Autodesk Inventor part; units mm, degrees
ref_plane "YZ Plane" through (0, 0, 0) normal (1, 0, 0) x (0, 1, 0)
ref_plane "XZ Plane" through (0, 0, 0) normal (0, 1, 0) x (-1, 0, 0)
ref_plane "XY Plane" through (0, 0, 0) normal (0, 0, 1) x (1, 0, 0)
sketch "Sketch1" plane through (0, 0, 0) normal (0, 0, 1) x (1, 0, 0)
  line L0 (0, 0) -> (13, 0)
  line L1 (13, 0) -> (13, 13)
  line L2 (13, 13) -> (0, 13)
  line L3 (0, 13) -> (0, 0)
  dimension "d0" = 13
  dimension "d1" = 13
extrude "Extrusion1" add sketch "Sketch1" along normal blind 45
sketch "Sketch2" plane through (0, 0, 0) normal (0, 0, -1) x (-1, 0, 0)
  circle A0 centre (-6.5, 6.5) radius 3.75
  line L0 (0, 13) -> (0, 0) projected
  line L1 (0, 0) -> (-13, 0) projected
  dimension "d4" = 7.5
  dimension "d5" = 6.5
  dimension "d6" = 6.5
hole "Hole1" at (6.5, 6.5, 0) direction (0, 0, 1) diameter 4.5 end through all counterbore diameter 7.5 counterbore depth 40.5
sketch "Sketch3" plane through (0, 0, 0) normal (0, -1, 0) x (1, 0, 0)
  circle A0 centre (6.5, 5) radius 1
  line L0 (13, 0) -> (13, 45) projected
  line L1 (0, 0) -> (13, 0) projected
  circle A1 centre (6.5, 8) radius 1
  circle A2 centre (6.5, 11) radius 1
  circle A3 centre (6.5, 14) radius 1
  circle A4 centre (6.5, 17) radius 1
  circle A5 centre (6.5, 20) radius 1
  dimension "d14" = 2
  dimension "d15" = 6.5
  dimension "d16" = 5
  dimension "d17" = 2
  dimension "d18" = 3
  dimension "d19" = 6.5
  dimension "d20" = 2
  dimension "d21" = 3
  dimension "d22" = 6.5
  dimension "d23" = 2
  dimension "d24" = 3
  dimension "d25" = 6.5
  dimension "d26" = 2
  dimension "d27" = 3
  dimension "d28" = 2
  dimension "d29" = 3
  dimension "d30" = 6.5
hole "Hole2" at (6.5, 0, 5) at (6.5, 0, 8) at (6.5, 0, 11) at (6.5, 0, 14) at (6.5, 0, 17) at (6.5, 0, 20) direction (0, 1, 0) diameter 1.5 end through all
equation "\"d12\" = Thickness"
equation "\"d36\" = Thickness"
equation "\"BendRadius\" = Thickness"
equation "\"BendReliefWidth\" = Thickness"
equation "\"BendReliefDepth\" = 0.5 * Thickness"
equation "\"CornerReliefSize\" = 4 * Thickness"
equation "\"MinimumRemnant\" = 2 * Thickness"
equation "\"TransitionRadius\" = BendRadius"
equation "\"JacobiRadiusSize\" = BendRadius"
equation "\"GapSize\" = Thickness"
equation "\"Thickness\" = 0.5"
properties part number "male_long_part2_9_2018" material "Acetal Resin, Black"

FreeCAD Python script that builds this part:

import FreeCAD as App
import Part
import Sketcher
Q = App.Units.Quantity

doc = App.newDocument("Part")
body = doc.addObject("PartDesign::Body", "Body")

sketch1 = doc.addObject("Sketcher::SketchObject", "Sketch")
body.addObject(sketch1)
sketch1.AttachmentSupport = (doc.XY_Plane, [""])
sketch1.MapMode = "FlatFace"
sketch1.addGeometry(Part.LineSegment(App.Vector(0, 13, 0), App.Vector(0, 0, 0)), False)
sketch1.addGeometry(Part.LineSegment(App.Vector(0, 0, 0), App.Vector(13, 0, 0)), False)
sketch1.addGeometry(Part.LineSegment(App.Vector(13, 0, 0), App.Vector(13, 13, 0)), False)
sketch1.addGeometry(Part.LineSegment(App.Vector(13, 13, 0), App.Vector(0, 13, 0)), False)
sketch1.addConstraint(Sketcher.Constraint("Coincident", 0, 2, 1, 1))
sketch1.addConstraint(Sketcher.Constraint("Coincident", 1, 2, 2, 1))
sketch1.addConstraint(Sketcher.Constraint("Coincident", 2, 2, 3, 1))
sketch1.addConstraint(Sketcher.Constraint("Coincident", 3, 2, 0, 1))
sketch1.addConstraint(Sketcher.Constraint("Vertical", 0))
sketch1.addConstraint(Sketcher.Constraint("Horizontal", 1))
sketch1.addConstraint(Sketcher.Constraint("Vertical", 2))
sketch1.addConstraint(Sketcher.Constraint("Horizontal", 3))
sketch1.addConstraint(Sketcher.Constraint("Coincident", 0, 2, -1, 1))
sketch1.addConstraint(Sketcher.Constraint("Equal", 3, 0))
sketch1.addConstraint(Sketcher.Constraint("DistanceX", 1, 1, 1, 2, Q("13 mm")))
pad1 = doc.addObject("PartDesign::Pad", "Pad")
body.addObject(pad1)
pad1.Profile = sketch1
pad1.Length = 45

sketch2 = doc.addObject("Sketcher::SketchObject", "Sketch001")
body.addObject(sketch2)
sketch2.AttachmentSupport = (doc.XY_Plane, [""])
sketch2.MapMode = "FlatFace"
sketch2.addGeometry(Part.Circle(App.Vector(6.5, 6.5, 0), App.Vector(0, 0, 1), 2.2), False)
sketch2.addConstraint(Sketcher.Constraint("Diameter", 0, Q("4.5 mm")))
sketch2.addConstraint(Sketcher.Constraint("DistanceX", -1, 1, 0, 3, Q("6.5 mm")))
sketch2.addConstraint(Sketcher.Constraint("DistanceY", -1, 1, 0, 3, Q("6.5 mm")))
doc.recompute()
hole = doc.addObject("PartDesign::Hole", "Hole")
body.addObject(hole)
hole.Profile = sketch2
hole.ThreadType = "None"
hole.Diameter = 4.5
hole.DepthType = "ThroughAll"
hole.HoleCutType = "Counterbore"
hole.HoleCutDiameter = 7.5
hole.HoleCutDepth = 40.5
hole.Reversed = True

sketch3 = doc.addObject("Sketcher::SketchObject", "Sketch002")
body.addObject(sketch3)
sketch3.AttachmentSupport = (doc.XZ_Plane, [""])
sketch3.MapMode = "FlatFace"
sketch3.addGeometry(Part.Circle(App.Vector(6.5, 5, 0), App.Vector(0, 0, 1), 0.8), False)
sketch3.addGeometry(Part.Circle(App.Vector(6.5, 8, 0), App.Vector(0, 0, 1), 0.8), False)
sketch3.addGeometry(Part.Circle(App.Vector(6.5, 11, 0), App.Vector(0, 0, 1), 0.8), False)
sketch3.addGeometry(Part.Circle(App.Vector(6.5, 14, 0), App.Vector(0, 0, 1), 0.8), False)
sketch3.addGeometry(Part.Circle(App.Vector(6.5, 17, 0), App.Vector(0, 0, 1), 0.8), False)
sketch3.addGeometry(Part.Circle(App.Vector(6.5, 20, 0), App.Vector(0, 0, 1), 0.8), False)
sketch3.addConstraint(Sketcher.Constraint("Equal", 0, 1))
sketch3.addConstraint(Sketcher.Constraint("Equal", 1, 2))
sketch3.addConstraint(Sketcher.Constraint("Equal", 2, 3))
sketch3.addConstraint(Sketcher.Constraint("Equal", 3, 4))
sketch3.addConstraint(Sketcher.Constraint("Equal", 4, 5))
sketch3.addConstraint(Sketcher.Constraint("Vertical", 0, 3, 1, 3))
sketch3.addConstraint(Sketcher.Constraint("Vertical", 1, 3, 2, 3))
sketch3.addConstraint(Sketcher.Constraint("Vertical", 2, 3, 3, 3))
sketch3.addConstraint(Sketcher.Constraint("Vertical", 3, 3, 4, 3))
sketch3.addConstraint(Sketcher.Constraint("Vertical", 4, 3, 5, 3))
sketch3.addConstraint(Sketcher.Constraint("Diameter", 0, Q("1.5 mm")))
sketch3.addConstraint(Sketcher.Constraint("DistanceY", -1, 1, 0, 3, Q("5 mm")))
sketch3.addConstraint(Sketcher.Constraint("DistanceY", -1, 1, 1, 3, Q("8 mm")))
sketch3.addConstraint(Sketcher.Constraint("DistanceY", -1, 1, 2, 3, Q("11 mm")))
sketch3.addConstraint(Sketcher.Constraint("DistanceY", -1, 1, 3, 3, Q("14 mm")))
sketch3.addConstraint(Sketcher.Constraint("DistanceY", -1, 1, 4, 3, Q("17 mm")))
sketch3.addConstraint(Sketcher.Constraint("DistanceY", -1, 1, 5, 3, Q("20 mm")))
sketch3.addConstraint(Sketcher.Constraint("DistanceX", -1, 1, 0, 3, Q("6.5 mm")))
doc.recompute()
hole2 = doc.addObject("PartDesign::Hole", "Hole001")
body.addObject(hole2)
hole2.Profile = sketch3
hole2.ThreadType = "None"
hole2.Diameter = 1.5
hole2.DepthType = "ThroughAll"

doc.recompute()
